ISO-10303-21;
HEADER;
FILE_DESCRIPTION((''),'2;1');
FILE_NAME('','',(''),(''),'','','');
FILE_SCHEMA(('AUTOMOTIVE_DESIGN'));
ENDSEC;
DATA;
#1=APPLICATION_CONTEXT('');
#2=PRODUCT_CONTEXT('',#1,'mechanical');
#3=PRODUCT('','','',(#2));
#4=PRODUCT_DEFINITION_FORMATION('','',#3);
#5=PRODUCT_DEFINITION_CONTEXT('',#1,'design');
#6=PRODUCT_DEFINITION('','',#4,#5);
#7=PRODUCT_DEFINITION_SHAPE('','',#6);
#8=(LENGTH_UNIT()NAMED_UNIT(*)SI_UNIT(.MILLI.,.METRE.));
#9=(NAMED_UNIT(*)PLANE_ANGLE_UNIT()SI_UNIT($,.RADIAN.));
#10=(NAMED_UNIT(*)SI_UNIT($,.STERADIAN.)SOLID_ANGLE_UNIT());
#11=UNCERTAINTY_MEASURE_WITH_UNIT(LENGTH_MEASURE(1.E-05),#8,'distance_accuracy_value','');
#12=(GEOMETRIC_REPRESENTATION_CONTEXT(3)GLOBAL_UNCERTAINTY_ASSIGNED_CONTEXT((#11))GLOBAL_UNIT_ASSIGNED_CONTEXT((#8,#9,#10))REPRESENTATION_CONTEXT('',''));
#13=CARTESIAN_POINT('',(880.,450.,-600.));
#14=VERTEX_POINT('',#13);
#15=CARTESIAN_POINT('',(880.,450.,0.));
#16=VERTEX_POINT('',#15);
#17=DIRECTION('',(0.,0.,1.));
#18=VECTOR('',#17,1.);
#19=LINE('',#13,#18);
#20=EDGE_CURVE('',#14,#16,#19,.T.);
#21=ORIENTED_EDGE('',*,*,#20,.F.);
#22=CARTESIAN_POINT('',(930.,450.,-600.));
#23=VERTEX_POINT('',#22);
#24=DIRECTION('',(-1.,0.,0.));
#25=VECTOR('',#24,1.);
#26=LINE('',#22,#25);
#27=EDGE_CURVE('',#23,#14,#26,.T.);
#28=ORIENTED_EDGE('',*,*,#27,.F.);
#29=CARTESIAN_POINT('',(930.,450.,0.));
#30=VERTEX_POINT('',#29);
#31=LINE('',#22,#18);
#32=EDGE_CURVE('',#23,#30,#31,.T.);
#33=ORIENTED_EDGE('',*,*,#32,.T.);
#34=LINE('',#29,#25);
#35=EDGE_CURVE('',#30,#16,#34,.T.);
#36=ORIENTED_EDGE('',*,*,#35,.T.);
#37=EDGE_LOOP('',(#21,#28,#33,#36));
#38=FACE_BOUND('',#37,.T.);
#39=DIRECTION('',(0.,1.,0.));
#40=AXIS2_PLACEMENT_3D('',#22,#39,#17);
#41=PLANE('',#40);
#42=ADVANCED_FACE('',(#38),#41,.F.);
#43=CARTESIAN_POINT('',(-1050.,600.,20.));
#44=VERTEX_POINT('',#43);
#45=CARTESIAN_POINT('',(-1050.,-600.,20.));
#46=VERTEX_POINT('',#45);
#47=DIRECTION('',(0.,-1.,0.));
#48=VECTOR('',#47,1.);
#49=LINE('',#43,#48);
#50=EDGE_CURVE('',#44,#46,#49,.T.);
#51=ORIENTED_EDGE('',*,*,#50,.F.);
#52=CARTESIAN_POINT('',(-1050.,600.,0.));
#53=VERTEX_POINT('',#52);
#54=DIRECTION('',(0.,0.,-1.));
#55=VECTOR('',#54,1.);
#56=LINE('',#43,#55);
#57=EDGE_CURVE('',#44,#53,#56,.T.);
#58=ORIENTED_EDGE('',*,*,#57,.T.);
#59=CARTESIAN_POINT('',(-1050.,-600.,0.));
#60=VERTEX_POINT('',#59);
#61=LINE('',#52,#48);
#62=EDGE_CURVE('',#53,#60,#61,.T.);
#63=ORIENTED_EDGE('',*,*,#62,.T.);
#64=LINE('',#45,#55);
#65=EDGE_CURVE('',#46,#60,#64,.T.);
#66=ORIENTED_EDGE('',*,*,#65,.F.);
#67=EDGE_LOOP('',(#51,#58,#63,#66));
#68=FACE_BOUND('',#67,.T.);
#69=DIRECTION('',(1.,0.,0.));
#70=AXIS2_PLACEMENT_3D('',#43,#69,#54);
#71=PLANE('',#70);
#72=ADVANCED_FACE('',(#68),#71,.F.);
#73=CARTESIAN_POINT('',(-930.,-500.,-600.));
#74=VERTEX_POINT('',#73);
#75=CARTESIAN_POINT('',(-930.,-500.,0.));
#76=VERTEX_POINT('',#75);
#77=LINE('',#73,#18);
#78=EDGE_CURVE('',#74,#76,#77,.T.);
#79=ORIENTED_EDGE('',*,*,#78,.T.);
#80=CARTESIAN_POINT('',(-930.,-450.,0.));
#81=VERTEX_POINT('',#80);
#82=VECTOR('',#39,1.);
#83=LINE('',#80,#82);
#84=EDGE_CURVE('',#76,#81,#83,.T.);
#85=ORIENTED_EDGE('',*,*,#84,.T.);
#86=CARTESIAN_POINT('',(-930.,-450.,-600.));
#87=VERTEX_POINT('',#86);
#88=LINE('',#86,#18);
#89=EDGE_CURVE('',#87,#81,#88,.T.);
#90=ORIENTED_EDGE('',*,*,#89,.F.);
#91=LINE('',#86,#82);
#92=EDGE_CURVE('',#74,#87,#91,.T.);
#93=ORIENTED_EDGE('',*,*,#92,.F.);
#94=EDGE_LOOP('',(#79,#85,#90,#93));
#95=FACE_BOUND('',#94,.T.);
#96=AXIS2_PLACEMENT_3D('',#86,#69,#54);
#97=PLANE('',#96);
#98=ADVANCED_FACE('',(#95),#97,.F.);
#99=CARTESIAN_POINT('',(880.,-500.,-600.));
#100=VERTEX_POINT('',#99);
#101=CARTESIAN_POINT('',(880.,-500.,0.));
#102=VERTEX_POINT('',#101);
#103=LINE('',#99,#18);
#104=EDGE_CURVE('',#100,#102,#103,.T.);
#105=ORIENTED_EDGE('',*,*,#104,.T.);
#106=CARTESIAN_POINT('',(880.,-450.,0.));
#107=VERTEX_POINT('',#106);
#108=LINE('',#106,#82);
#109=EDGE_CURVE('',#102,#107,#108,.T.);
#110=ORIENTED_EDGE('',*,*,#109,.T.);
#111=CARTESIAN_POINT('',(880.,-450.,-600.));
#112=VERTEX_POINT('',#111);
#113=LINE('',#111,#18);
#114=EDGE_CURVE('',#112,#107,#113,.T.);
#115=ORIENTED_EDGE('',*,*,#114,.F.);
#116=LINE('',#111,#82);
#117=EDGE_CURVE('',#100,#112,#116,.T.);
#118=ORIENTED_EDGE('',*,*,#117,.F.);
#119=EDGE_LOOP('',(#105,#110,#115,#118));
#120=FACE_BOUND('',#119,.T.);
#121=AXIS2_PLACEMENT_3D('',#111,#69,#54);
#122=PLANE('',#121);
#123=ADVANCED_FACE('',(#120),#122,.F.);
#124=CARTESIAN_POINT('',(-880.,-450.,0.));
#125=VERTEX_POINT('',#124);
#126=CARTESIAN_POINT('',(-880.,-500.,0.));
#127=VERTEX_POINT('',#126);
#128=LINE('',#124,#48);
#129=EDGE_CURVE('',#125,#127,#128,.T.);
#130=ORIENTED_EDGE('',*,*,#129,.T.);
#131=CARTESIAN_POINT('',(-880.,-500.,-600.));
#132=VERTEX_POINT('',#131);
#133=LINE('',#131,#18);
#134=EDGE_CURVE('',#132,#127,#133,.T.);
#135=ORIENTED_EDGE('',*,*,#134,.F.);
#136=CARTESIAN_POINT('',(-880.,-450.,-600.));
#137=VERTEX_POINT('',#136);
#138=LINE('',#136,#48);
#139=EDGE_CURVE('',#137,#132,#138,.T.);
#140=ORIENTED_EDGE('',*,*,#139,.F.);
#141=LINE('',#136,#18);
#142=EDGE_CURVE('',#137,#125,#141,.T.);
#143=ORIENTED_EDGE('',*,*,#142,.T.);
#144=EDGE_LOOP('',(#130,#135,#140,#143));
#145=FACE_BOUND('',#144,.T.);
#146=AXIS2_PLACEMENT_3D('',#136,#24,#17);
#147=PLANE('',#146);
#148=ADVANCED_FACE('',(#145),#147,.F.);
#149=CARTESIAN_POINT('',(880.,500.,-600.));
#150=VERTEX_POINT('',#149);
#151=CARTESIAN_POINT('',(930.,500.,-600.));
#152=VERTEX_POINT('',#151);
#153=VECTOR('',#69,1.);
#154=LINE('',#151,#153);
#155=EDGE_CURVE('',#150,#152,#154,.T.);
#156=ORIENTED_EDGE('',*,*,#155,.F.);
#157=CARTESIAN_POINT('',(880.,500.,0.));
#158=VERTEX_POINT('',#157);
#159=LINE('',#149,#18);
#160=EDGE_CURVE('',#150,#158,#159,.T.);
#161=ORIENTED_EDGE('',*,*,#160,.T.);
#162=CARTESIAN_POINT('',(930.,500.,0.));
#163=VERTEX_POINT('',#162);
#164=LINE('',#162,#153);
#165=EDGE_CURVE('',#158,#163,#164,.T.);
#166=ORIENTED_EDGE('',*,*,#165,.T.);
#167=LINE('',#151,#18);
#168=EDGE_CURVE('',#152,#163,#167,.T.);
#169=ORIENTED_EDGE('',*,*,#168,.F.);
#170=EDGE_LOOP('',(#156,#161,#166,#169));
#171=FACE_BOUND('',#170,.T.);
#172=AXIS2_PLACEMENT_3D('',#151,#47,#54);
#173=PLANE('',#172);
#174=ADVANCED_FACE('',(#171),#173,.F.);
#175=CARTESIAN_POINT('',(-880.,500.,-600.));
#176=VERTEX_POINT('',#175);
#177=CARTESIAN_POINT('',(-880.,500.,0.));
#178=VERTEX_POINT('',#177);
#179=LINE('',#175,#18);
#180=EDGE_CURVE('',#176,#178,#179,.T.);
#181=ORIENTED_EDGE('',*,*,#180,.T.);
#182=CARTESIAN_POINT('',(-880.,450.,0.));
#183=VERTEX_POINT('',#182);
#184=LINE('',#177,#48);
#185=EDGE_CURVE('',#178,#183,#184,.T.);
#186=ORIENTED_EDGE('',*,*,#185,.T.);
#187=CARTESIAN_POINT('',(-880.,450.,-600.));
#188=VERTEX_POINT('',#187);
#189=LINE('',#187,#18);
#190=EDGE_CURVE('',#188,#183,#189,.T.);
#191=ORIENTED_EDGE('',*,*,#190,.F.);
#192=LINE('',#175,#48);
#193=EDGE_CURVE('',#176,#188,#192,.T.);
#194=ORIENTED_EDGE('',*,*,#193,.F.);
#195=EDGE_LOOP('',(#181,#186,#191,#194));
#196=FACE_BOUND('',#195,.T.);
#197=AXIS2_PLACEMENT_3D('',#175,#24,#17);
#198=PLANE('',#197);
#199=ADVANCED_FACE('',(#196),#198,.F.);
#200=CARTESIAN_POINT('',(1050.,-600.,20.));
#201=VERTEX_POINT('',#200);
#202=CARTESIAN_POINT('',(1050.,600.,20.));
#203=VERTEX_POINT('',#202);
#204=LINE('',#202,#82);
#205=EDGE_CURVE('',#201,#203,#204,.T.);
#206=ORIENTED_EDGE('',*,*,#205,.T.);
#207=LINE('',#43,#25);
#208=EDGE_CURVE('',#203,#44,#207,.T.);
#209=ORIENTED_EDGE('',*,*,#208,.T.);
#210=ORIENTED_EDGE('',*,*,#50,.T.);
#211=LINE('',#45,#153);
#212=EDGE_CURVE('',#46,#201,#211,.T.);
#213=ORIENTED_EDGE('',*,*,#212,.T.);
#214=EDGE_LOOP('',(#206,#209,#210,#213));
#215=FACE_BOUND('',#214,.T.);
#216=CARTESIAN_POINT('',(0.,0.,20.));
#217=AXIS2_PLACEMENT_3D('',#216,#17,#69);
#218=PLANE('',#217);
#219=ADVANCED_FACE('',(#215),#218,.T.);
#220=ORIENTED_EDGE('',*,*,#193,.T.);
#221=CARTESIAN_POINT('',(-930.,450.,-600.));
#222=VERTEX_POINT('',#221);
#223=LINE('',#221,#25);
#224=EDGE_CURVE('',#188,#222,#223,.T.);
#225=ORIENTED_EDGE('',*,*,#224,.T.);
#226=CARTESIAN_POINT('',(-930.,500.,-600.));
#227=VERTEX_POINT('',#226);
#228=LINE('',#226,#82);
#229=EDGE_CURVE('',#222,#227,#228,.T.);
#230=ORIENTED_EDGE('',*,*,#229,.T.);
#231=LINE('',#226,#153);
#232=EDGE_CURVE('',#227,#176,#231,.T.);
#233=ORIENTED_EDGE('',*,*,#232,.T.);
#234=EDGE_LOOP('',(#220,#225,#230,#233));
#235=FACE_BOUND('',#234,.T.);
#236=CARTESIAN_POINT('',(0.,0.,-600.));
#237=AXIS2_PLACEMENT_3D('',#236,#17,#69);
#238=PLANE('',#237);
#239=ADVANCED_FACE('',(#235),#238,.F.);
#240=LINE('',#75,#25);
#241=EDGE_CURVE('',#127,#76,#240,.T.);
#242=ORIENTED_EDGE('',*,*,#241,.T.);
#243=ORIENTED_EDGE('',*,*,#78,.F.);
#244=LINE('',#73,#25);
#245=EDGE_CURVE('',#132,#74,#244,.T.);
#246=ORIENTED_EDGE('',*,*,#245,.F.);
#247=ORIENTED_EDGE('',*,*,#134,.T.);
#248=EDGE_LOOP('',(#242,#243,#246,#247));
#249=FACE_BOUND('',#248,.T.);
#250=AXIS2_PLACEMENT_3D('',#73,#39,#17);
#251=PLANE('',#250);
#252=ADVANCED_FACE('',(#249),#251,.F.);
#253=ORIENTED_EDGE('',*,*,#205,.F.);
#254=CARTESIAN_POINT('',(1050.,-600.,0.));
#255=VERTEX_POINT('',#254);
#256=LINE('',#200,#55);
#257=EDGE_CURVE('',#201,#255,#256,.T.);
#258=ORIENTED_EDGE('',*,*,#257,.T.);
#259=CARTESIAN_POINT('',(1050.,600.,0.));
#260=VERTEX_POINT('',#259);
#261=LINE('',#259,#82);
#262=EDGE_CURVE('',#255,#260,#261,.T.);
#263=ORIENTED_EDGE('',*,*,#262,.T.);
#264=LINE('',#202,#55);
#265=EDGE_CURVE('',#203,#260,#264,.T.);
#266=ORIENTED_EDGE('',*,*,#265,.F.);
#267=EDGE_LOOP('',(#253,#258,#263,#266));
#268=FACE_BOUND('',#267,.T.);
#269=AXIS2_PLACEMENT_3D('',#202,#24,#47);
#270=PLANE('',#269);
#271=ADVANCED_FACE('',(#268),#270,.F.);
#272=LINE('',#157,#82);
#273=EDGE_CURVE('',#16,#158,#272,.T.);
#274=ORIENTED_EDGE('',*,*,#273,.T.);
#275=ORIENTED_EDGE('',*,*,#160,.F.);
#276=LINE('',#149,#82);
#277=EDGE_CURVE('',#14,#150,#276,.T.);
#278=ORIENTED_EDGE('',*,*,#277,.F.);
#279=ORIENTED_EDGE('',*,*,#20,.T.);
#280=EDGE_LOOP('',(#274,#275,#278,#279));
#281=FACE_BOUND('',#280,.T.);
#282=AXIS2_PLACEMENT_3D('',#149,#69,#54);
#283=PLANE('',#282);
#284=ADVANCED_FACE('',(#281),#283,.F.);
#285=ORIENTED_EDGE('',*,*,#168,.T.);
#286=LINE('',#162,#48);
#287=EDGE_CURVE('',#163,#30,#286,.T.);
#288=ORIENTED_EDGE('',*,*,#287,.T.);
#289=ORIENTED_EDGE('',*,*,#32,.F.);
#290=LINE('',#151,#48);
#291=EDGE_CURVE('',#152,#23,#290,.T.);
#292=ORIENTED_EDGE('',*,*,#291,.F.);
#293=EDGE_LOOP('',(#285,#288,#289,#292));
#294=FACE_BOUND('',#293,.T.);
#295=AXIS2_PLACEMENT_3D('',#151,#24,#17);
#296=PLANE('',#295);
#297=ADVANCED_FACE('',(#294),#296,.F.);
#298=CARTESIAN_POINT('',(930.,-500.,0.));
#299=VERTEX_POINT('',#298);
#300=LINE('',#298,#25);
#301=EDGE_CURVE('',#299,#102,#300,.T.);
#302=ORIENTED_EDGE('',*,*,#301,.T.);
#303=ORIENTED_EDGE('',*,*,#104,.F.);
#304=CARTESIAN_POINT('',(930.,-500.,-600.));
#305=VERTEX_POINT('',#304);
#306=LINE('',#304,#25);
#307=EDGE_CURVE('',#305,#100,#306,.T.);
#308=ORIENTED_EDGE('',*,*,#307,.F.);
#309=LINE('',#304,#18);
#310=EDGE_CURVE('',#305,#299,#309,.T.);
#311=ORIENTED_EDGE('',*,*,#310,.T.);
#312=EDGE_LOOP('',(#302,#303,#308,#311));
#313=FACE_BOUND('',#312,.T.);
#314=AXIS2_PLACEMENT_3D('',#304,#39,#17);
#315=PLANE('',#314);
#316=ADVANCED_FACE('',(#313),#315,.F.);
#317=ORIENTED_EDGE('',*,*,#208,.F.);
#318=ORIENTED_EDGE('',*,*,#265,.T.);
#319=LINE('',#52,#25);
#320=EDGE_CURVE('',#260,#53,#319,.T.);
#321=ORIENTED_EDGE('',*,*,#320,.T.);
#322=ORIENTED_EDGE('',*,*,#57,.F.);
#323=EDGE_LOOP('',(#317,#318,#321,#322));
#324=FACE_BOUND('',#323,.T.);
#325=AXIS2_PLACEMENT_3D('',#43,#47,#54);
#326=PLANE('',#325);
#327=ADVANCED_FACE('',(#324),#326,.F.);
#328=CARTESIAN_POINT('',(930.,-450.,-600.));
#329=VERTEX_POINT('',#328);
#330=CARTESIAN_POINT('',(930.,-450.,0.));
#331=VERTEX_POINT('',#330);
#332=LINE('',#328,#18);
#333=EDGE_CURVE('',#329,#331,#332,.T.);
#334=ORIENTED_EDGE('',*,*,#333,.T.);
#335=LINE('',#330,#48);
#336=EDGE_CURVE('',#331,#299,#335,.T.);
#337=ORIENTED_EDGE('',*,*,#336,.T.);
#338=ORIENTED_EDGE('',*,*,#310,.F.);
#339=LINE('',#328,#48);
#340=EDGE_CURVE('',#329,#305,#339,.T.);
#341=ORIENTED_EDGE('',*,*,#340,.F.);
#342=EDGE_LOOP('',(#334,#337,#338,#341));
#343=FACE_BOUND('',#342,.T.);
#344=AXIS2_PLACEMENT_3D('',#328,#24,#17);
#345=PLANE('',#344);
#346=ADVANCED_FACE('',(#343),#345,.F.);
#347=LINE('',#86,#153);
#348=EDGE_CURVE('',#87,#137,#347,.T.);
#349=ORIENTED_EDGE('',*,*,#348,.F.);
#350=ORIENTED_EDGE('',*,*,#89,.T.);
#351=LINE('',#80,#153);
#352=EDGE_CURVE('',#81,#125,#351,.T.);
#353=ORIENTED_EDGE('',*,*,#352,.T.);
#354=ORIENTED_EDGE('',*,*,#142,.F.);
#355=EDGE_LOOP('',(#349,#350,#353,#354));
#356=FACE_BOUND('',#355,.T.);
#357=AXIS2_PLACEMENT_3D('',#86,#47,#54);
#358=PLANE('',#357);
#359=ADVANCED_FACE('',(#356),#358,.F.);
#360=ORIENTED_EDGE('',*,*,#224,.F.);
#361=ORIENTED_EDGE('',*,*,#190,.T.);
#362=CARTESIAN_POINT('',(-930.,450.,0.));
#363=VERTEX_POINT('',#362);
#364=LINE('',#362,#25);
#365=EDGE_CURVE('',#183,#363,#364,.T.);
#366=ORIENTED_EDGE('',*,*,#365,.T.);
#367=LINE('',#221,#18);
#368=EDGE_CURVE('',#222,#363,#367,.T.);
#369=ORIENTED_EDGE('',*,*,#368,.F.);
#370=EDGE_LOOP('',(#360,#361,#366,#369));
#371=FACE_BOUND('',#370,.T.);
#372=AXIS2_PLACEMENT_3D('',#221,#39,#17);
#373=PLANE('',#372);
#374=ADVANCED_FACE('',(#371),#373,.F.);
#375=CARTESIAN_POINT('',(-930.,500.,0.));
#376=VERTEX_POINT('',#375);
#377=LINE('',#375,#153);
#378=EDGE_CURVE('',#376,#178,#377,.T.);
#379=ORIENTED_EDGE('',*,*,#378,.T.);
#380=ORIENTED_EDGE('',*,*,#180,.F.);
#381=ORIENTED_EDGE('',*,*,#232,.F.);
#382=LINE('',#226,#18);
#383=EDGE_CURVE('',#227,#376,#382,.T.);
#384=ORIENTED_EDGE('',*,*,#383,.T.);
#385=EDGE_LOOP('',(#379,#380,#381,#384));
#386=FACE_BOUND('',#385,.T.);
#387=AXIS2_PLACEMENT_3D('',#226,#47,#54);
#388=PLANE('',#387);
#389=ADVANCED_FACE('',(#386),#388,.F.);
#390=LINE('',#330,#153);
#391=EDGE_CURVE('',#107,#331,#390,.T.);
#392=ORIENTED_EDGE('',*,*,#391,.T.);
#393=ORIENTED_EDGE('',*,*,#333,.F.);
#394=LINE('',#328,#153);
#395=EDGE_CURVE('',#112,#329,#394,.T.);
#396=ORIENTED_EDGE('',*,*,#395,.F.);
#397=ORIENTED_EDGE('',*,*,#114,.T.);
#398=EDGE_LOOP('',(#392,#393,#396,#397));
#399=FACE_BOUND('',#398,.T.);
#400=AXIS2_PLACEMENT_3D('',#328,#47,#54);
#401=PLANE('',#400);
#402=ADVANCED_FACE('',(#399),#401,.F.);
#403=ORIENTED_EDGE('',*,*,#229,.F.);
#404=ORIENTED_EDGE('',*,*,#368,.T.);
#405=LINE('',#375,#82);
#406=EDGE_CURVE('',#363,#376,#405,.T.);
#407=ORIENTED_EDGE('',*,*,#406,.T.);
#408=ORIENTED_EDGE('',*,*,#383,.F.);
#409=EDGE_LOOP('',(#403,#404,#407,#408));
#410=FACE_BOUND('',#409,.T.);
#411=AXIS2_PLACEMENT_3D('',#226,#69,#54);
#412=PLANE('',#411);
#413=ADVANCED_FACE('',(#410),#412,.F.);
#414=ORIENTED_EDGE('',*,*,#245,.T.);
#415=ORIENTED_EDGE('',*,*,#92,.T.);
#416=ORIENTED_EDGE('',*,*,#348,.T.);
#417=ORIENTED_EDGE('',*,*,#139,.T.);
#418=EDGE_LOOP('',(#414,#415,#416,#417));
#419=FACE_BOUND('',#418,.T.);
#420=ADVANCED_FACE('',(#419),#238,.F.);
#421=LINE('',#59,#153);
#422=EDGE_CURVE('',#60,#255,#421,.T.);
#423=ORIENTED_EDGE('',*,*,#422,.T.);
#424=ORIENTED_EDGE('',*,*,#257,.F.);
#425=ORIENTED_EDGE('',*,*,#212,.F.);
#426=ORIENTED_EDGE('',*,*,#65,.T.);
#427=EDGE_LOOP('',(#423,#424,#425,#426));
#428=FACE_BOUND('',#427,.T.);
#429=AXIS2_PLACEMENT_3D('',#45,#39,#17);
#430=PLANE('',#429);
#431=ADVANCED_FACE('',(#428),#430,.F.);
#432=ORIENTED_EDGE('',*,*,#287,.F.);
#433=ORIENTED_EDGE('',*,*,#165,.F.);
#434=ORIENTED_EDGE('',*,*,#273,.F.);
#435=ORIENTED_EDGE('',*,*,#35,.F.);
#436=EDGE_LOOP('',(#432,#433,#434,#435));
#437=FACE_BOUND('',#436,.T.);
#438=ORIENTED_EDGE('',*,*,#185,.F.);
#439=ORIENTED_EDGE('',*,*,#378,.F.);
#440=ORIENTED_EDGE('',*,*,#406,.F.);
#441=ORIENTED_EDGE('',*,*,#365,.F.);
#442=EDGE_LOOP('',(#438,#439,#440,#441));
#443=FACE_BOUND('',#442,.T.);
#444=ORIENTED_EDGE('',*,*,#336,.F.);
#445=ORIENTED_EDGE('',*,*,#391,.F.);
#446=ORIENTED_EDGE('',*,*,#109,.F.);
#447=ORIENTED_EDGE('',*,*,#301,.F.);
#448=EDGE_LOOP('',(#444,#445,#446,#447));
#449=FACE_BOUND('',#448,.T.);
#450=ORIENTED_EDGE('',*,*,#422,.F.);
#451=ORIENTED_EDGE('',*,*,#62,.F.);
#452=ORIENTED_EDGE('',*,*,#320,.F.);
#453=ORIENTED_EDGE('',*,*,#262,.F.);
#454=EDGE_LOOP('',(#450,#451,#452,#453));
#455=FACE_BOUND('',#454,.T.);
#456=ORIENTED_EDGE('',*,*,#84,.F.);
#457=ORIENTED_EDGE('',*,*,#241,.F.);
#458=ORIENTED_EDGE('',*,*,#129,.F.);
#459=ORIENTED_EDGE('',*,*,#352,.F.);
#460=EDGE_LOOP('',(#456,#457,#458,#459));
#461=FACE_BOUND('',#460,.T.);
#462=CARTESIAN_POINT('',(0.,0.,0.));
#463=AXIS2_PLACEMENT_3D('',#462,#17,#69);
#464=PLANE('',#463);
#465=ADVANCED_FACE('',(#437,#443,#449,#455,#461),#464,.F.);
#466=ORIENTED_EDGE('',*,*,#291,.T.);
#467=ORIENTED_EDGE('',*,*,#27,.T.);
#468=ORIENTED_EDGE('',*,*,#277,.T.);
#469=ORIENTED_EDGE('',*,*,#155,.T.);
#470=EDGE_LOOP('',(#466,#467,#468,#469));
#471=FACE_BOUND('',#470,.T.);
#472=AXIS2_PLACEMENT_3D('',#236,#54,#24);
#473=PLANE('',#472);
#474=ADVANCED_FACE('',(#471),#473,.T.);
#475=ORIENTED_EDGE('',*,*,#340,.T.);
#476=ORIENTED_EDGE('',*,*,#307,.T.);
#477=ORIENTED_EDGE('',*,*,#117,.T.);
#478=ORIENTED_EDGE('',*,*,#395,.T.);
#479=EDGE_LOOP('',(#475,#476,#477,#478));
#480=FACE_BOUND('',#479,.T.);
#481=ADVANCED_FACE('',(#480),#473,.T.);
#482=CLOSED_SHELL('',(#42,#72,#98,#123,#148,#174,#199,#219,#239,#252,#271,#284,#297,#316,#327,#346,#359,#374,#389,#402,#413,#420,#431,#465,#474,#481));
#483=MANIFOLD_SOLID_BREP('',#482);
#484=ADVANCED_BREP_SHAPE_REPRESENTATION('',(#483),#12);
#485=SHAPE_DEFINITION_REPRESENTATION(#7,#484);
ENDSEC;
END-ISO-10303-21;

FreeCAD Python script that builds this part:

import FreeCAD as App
import Part
import Sketcher

V = App.Vector
Q = App.Units.Quantity


def add_polygon(sketch, points):
    """Adds a closed chain of lines whose ends are joined by coincident constraints."""
    first, n = sketch.GeometryCount, len(points)
    for a, b in zip(points, points[1:] + points[:1]):
        sketch.addGeometry(Part.LineSegment(App.Vector(*a, 0), App.Vector(*b, 0)), False)
    for i in range(n):
        sketch.addConstraint(Sketcher.Constraint("Coincident", first + i, 2, first + (i + 1) % n, 1))

doc = App.newDocument("Part")
body = doc.addObject("PartDesign::Body", "Body")

# Sketch on XY plane
sketch1 = doc.addObject("Sketcher::SketchObject", "Sketch")
body.addObject(sketch1)
sketch1.AttachmentSupport = (doc.XY_Plane, [""])
sketch1.MapMode = "FlatFace"
add_polygon(sketch1, [(-1050, 600), (-1050, -600), (1050, -600), (1050, 600)])  # lines 0-3
sketch1.addConstraint(Sketcher.Constraint("Vertical", 0))
sketch1.addConstraint(Sketcher.Constraint("Horizontal", 1))
sketch1.addConstraint(Sketcher.Constraint("Vertical", 2))
sketch1.addConstraint(Sketcher.Constraint("Horizontal", 3))
sketch1.addConstraint(Sketcher.Constraint("Symmetric", 0, 2, 2, 2, -1, 1))
sketch1.addConstraint(Sketcher.Constraint("DistanceX", 1, 1, 1, 2, Q("2100 mm")))
sketch1.addConstraint(Sketcher.Constraint("DistanceY", 0, 2, 0, 1, Q("1200 mm")))
pad1 = doc.addObject("PartDesign::Pad", "Pad")
body.addObject(pad1)
pad1.Profile = sketch1
pad1.Length = 20

# Sketch on XY plane
sketch2 = doc.addObject("Sketcher::SketchObject", "Sketch001")
body.addObject(sketch2)
sketch2.AttachmentSupport = (doc.XY_Plane, [""])
sketch2.MapMode = "FlatFace"
add_polygon(sketch2, [(930, 500), (930, 450), (880, 450), (880, 500)])  # lines 0-3
add_polygon(sketch2, [(-880, -450), (-880, -500), (-930, -500), (-930, -450)])  # lines 4-7
add_polygon(sketch2, [(930, -450), (930, -500), (880, -500), (880, -450)])  # lines 8-11
add_polygon(sketch2, [(-880, 500), (-880, 450), (-930, 450), (-930, 500)])  # lines 12-15
sketch2.addConstraint(Sketcher.Constraint("Vertical", 0))
sketch2.addConstraint(Sketcher.Constraint("Horizontal", 1))
sketch2.addConstraint(Sketcher.Constraint("Vertical", 2))
sketch2.addConstraint(Sketcher.Constraint("Horizontal", 3))
sketch2.addConstraint(Sketcher.Constraint("Vertical", 4))
sketch2.addConstraint(Sketcher.Constraint("Horizontal", 5))
sketch2.addConstraint(Sketcher.Constraint("Vertical", 6))
sketch2.addConstraint(Sketcher.Constraint("Horizontal", 7))
sketch2.addConstraint(Sketcher.Constraint("Vertical", 8))
sketch2.addConstraint(Sketcher.Constraint("Horizontal", 9))
sketch2.addConstraint(Sketcher.Constraint("Vertical", 10))
sketch2.addConstraint(Sketcher.Constraint("Horizontal", 11))
sketch2.addConstraint(Sketcher.Constraint("Vertical", 12))
sketch2.addConstraint(Sketcher.Constraint("Horizontal", 13))
sketch2.addConstraint(Sketcher.Constraint("Vertical", 14))
sketch2.addConstraint(Sketcher.Constraint("Horizontal", 15))
sketch2.addConstraint(Sketcher.Constraint("Symmetric", 2, 2, 4, 2, -1, 1))
sketch2.addConstraint(Sketcher.Constraint("Symmetric", 0, 2, 6, 2, -1, 1))
sketch2.addConstraint(Sketcher.Constraint("Symmetric", 10, 2, 12, 2, -1, 1))
sketch2.addConstraint(Sketcher.Constraint("Symmetric", 8, 2, 14, 2, -1, 1))
sketch2.addConstraint(Sketcher.Constraint("Symmetric", 5, 2, 8, 2, -2))
sketch2.addConstraint(Sketcher.Constraint("Symmetric", 7, 2, 10, 2, -2))
sketch2.addConstraint(Sketcher.Constraint("Equal", 15, 0))
sketch2.addConstraint(Sketcher.Constraint("DistanceX", 1, 2, 1, 1, Q("50 mm")))
sketch2.addConstraint(Sketcher.Constraint("DistanceX", -1, 1, 0, 2, Q("930 mm")))
sketch2.addConstraint(Sketcher.Constraint("DistanceY", -1, 1, 0, 2, Q("450 mm")))
pad2 = doc.addObject("PartDesign::Pad", "Pad001")
body.addObject(pad2)
pad2.Profile = sketch2
pad2.Length = 600
pad2.Reversed = True

doc.recompute()
